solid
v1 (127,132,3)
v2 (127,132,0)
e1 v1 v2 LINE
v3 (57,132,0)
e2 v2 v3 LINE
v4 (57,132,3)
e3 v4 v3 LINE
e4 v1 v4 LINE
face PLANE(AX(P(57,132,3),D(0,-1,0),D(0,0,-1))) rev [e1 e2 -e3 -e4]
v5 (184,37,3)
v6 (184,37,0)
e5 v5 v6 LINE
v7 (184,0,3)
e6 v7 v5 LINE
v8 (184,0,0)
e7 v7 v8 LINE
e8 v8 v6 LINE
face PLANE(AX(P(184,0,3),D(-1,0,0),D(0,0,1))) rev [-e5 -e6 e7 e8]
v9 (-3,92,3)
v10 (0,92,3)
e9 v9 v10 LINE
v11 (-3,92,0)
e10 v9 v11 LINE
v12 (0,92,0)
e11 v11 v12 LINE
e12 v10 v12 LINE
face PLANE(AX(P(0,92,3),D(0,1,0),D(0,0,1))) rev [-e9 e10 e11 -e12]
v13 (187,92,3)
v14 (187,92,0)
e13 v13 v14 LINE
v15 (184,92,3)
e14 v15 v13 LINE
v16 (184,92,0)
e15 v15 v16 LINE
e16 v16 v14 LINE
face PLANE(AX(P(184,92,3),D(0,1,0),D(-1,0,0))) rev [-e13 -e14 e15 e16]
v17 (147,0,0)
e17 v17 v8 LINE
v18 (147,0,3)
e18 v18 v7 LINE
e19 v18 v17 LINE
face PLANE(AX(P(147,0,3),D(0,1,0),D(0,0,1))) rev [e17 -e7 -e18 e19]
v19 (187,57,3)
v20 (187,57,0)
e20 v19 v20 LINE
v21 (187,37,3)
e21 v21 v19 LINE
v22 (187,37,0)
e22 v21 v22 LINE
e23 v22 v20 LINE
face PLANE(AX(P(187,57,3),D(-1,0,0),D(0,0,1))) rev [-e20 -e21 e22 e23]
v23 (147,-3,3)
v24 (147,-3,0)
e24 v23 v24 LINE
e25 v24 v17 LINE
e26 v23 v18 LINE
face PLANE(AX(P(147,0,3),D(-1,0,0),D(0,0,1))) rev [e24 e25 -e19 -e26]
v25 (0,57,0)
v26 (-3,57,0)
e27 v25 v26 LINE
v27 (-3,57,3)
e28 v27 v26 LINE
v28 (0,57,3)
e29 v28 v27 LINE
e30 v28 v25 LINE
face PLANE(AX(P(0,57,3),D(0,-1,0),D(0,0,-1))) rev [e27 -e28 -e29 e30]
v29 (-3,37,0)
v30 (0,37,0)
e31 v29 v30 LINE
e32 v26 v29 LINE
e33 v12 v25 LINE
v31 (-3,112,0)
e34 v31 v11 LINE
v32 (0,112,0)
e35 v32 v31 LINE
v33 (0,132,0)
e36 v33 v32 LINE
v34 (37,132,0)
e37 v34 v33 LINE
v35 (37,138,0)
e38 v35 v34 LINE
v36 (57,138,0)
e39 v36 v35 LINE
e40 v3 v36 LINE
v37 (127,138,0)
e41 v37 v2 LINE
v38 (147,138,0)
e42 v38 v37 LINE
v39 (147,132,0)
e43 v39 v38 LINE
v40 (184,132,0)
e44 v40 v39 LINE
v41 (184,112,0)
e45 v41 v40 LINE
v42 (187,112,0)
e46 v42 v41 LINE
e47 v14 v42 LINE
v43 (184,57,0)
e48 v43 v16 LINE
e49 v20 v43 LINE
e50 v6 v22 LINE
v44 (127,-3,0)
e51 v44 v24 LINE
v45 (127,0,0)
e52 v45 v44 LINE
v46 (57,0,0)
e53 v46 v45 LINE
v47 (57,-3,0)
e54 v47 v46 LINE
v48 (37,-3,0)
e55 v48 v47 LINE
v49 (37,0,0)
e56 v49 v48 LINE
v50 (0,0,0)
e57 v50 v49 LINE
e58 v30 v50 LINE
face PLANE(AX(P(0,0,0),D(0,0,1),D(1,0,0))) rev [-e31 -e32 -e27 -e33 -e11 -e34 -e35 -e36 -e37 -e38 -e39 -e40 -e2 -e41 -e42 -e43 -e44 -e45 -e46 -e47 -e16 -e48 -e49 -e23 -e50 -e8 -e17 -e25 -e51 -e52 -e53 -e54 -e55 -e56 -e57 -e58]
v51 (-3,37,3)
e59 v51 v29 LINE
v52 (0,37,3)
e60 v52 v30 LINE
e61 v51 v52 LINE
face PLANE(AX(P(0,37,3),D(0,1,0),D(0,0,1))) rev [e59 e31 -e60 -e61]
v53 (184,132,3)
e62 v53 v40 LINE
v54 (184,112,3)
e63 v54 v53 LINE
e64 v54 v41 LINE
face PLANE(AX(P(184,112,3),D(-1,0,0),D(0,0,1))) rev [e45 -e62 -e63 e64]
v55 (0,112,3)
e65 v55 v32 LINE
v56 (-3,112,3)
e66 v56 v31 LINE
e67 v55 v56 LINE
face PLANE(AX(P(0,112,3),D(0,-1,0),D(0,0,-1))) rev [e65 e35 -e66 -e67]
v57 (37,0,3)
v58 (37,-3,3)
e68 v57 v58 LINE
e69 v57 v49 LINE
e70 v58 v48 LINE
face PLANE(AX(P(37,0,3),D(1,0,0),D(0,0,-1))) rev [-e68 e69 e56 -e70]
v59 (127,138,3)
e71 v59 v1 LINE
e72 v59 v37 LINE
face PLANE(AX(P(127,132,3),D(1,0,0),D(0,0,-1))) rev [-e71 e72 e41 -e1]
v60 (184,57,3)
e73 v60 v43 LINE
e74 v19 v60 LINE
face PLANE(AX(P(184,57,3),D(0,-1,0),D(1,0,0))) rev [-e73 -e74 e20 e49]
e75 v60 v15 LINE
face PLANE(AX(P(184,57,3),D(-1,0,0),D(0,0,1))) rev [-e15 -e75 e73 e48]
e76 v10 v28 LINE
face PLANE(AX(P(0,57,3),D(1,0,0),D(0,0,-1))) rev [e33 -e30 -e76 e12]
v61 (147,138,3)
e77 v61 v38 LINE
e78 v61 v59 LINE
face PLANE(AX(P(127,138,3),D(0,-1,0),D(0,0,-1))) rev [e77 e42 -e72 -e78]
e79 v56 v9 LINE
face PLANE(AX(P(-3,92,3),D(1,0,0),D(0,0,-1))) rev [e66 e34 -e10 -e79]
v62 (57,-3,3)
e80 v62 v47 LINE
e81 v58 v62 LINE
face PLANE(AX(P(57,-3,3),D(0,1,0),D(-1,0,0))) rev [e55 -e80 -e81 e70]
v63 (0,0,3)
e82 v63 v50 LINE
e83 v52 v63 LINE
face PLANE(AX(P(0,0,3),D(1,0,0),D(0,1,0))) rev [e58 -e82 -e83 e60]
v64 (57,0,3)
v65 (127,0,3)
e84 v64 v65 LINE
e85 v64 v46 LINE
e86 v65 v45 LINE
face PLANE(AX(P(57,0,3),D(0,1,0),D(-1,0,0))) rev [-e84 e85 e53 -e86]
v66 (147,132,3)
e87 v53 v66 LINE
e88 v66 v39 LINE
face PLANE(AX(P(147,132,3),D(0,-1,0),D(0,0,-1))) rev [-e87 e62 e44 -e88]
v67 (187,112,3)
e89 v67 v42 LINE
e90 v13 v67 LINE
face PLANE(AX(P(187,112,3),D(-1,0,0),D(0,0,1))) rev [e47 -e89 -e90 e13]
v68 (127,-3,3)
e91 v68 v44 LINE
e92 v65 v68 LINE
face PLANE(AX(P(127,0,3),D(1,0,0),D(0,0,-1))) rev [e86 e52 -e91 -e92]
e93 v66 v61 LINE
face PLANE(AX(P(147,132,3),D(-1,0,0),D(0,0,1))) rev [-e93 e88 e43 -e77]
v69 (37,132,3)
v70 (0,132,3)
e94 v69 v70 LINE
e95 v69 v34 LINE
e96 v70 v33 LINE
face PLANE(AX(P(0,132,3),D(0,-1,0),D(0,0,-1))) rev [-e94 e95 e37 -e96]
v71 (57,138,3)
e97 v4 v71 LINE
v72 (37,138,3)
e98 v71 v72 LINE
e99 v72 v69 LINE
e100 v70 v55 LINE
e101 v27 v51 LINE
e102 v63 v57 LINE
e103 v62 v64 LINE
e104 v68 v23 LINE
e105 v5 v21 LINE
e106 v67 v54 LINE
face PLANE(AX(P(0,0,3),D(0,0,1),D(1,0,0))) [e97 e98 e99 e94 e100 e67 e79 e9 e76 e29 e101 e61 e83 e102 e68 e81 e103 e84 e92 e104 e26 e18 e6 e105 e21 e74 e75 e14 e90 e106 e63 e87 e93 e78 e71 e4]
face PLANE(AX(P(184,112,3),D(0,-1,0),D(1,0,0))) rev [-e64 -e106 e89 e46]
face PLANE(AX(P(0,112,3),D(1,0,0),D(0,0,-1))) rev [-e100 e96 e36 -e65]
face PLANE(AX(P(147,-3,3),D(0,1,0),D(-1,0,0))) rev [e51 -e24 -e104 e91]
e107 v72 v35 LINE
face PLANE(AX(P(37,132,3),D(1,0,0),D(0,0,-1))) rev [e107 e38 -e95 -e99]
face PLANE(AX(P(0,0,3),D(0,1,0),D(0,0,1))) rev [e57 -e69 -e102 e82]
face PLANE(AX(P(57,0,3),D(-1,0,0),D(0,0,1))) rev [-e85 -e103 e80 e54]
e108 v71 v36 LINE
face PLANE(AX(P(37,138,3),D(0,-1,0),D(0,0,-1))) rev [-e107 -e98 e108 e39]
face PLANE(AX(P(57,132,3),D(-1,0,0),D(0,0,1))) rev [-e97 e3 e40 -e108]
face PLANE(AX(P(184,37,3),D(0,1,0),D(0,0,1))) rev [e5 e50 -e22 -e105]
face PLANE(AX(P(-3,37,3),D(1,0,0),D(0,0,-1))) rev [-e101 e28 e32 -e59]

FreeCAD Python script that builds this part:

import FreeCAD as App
import Part
import Sketcher
from FreeCAD import Vector

doc = App.newDocument("Part")
params = doc.addObject("Spreadsheet::Sheet", "Params")
for row, (alias, value) in enumerate([
    ("sketch1_width", "3 mm"),
    ("sketch1_width2", "37 mm"),
    ("sketch1_width3", "20 mm"),
    ("sketch1_width4", "70 mm"),
    ("sketch1_height", "35 mm"),
    ("pad1_length", "3 mm"),
], start=1):
    params.set(f"A{row}", alias)
    params.set(f"B{row}", "=" + value)
    params.setAlias(f"B{row}", alias)

body = doc.addObject("PartDesign::Body", "Body")

# Sketch on XY plane
sketch1 = body.newObject("Sketcher::SketchObject", "Sketch")
sketch1.AttachmentSupport = (doc.getObject("XY_Plane"), [""])
sketch1.MapMode = "FlatFace"
sketch1.addGeometry([
    Part.LineSegment(Vector(0, 132, 0), Vector(0, 112, 0)),  # 0
    Part.LineSegment(Vector(0, 112, 0), Vector(-3, 112, 0)),  # 1
    Part.LineSegment(Vector(-3, 112, 0), Vector(-3, 92, 0)),  # 2
    Part.LineSegment(Vector(-3, 92, 0), Vector(0, 92, 0)),  # 3
    Part.LineSegment(Vector(0, 92, 0), Vector(0, 57, 0)),  # 4
    Part.LineSegment(Vector(0, 57, 0), Vector(-3, 57, 0)),  # 5
    Part.LineSegment(Vector(-3, 57, 0), Vector(-3, 37, 0)),  # 6
    Part.LineSegment(Vector(-3, 37, 0), Vector(0, 37, 0)),  # 7
    Part.LineSegment(Vector(0, 37, 0), Vector(0, 0, 0)),  # 8
    Part.LineSegment(Vector(0, 0, 0), Vector(37, 0, 0)),  # 9
    Part.LineSegment(Vector(37, 0, 0), Vector(37, -3, 0)),  # 10
    Part.LineSegment(Vector(37, -3, 0), Vector(57, -3, 0)),  # 11
    Part.LineSegment(Vector(57, -3, 0), Vector(57, 0, 0)),  # 12
    Part.LineSegment(Vector(57, 0, 0), Vector(127, 0, 0)),  # 13
    Part.LineSegment(Vector(127, 0, 0), Vector(127, -3, 0)),  # 14
    Part.LineSegment(Vector(127, -3, 0), Vector(147, -3, 0)),  # 15
    Part.LineSegment(Vector(147, -3, 0), Vector(147, 0, 0)),  # 16
    Part.LineSegment(Vector(147, 0, 0), Vector(184, 0, 0)),  # 17
    Part.LineSegment(Vector(184, 0, 0), Vector(184, 37, 0)),  # 18
    Part.LineSegment(Vector(184, 37, 0), Vector(187, 37, 0)),  # 19
    Part.LineSegment(Vector(187, 37, 0), Vector(187, 57, 0)),  # 20
    Part.LineSegment(Vector(187, 57, 0), Vector(184, 57, 0)),  # 21
    Part.LineSegment(Vector(184, 57, 0), Vector(184, 92, 0)),  # 22
    Part.LineSegment(Vector(184, 92, 0), Vector(187, 92, 0)),  # 23
    Part.LineSegment(Vector(187, 92, 0), Vector(187, 112, 0)),  # 24
    Part.LineSegment(Vector(187, 112, 0), Vector(184, 112, 0)),  # 25
    Part.LineSegment(Vector(184, 112, 0), Vector(184, 132, 0)),  # 26
    Part.LineSegment(Vector(184, 132, 0), Vector(147, 132, 0)),  # 27
    Part.LineSegment(Vector(147, 132, 0), Vector(147, 138, 0)),  # 28
    Part.LineSegment(Vector(147, 138, 0), Vector(127, 138, 0)),  # 29
    Part.LineSegment(Vector(127, 138, 0), Vector(127, 132, 0)),  # 30
    Part.LineSegment(Vector(127, 132, 0), Vector(57, 132, 0)),  # 31
    Part.LineSegment(Vector(57, 132, 0), Vector(57, 138, 0)),  # 32
    Part.LineSegment(Vector(57, 138, 0), Vector(37, 138, 0)),  # 33
    Part.LineSegment(Vector(37, 138, 0), Vector(37, 132, 0)),  # 34
    Part.LineSegment(Vector(37, 132, 0), Vector(0, 132, 0)),  # 35
], False)
sketch1.addConstraint([
    Sketcher.Constraint("Coincident", 0, 2, 1, 1),
    Sketcher.Constraint("Coincident", 1, 2, 2, 1),
    Sketcher.Constraint("Coincident", 2, 2, 3, 1),
    Sketcher.Constraint("Coincident", 3, 2, 4, 1),
    Sketcher.Constraint("Coincident", 4, 2, 5, 1),
    Sketcher.Constraint("Coincident", 5, 2, 6, 1),
    Sketcher.Constraint("Coincident", 6, 2, 7, 1),
    Sketcher.Constraint("Coincident", 7, 2, 8, 1),
    Sketcher.Constraint("Coincident", 8, 2, 9, 1),
    Sketcher.Constraint("Coincident", 9, 2, 10, 1),
    Sketcher.Constraint("Coincident", 10, 2, 11, 1),
    Sketcher.Constraint("Coincident", 11, 2, 12, 1),
    Sketcher.Constraint("Coincident", 12, 2, 13, 1),
    Sketcher.Constraint("Coincident", 13, 2, 14, 1),
    Sketcher.Constraint("Coincident", 14, 2, 15, 1),
    Sketcher.Constraint("Coincident", 15, 2, 16, 1),
    Sketcher.Constraint("Coincident", 16, 2, 17, 1),
    Sketcher.Constraint("Coincident", 17, 2, 18, 1),
    Sketcher.Constraint("Coincident", 18, 2, 19, 1),
    Sketcher.Constraint("Coincident", 19, 2, 20, 1),
    Sketcher.Constraint("Coincident", 20, 2, 21, 1),
    Sketcher.Constraint("Coincident", 21, 2, 22, 1),
    Sketcher.Constraint("Coincident", 22, 2, 23, 1),
    Sketcher.Constraint("Coincident", 23, 2, 24, 1),
    Sketcher.Constraint("Coincident", 24, 2, 25, 1),
    Sketcher.Constraint("Coincident", 25, 2, 26, 1),
    Sketcher.Constraint("Coincident", 26, 2, 27, 1),
    Sketcher.Constraint("Coincident", 27, 2, 28, 1),
    Sketcher.Constraint("Coincident", 28, 2, 29, 1),
    Sketcher.Constraint("Coincident", 29, 2, 30, 1),
    Sketcher.Constraint("Coincident", 30, 2, 31, 1),
    Sketcher.Constraint("Coincident", 31, 2, 32, 1),
    Sketcher.Constraint("Coincident", 32, 2, 33, 1),
    Sketcher.Constraint("Coincident", 33, 2, 34, 1),
    Sketcher.Constraint("Coincident", 34, 2, 35, 1),
    Sketcher.Constraint("Coincident", 35, 2, 0, 1),
    Sketcher.Constraint("Vertical", 0),
    Sketcher.Constraint("Horizontal", 1),
    Sketcher.Constraint("Vertical", 2),
    Sketcher.Constraint("Horizontal", 3),
    Sketcher.Constraint("Vertical", 4),
    Sketcher.Constraint("Horizontal", 5),
    Sketcher.Constraint("Vertical", 6),
    Sketcher.Constraint("Horizontal", 7),
    Sketcher.Constraint("Vertical", 8),
    Sketcher.Constraint("Horizontal", 9),
    Sketcher.Constraint("Vertical", 10),
    Sketcher.Constraint("Horizontal", 11),
    Sketcher.Constraint("Vertical", 12),
    Sketcher.Constraint("Horizontal", 13),
    Sketcher.Constraint("Vertical", 14),
    Sketcher.Constraint("Horizontal", 15),
    Sketcher.Constraint("Vertical", 16),
    Sketcher.Constraint("Horizontal", 17),
    Sketcher.Constraint("Vertical", 18),
    Sketcher.Constraint("Horizontal", 19),
    Sketcher.Constraint("Vertical", 20),
    Sketcher.Constraint("Horizontal", 21),
    Sketcher.Constraint("Vertical", 22),
    Sketcher.Constraint("Horizontal", 23),
    Sketcher.Constraint("Vertical", 24),
    Sketcher.Constraint("Horizontal", 25),
    Sketcher.Constraint("Vertical", 26),
    Sketcher.Constraint("Horizontal", 27),
    Sketcher.Constraint("Vertical", 28),
    Sketcher.Constraint("Horizontal", 29),
    Sketcher.Constraint("Vertical", 30),
    Sketcher.Constraint("Horizontal", 31),
    Sketcher.Constraint("Vertical", 32),
    Sketcher.Constraint("Horizontal", 33),
    Sketcher.Constraint("Vertical", 34),
    Sketcher.Constraint("Horizontal", 35),
    Sketcher.Constraint("Coincident", 8, 2, -1, 1),
    Sketcher.Constraint("PointOnObject", 0, 2, -2),
    Sketcher.Constraint("PointOnObject", 3, 2, -2),
    Sketcher.Constraint("PointOnObject", 12, 2, -1),
    Sketcher.Constraint("PointOnObject", 16, 2, -1),
    Sketcher.Constraint("Horizontal", 11, 2, 14, 2),
    Sketcher.Constraint("Horizontal", 7, 2, 18, 2),
    Sketcher.Constraint("Horizontal", 5, 2, 20, 2),
    Sketcher.Constraint("Horizontal", 3, 2, 22, 2),
    Sketcher.Constraint("Horizontal", 1, 2, 24, 2),
    Sketcher.Constraint("Horizontal", 27, 2, 30, 2),
    Sketcher.Constraint("Horizontal", 29, 2, 32, 2),
    Sketcher.Constraint("Horizontal", 31, 2, 34, 2),
    Sketcher.Constraint("Vertical", 2, 2, 5, 2),
    Sketcher.Constraint("Vertical", 18, 2, 21, 2),
    Sketcher.Constraint("Vertical", 20, 2, 23, 2),
    Sketcher.Constraint("Vertical", 22, 2, 25, 2),
    Sketcher.Constraint("Vertical", 16, 2, 27, 2),
    Sketcher.Constraint("Vertical", 14, 2, 29, 2),
    Sketcher.Constraint("Vertical", 12, 2, 31, 2),
    Sketcher.Constraint("Vertical", 10, 2, 33, 2),
    Sketcher.Constraint("Equal", 11, 15),
    Sketcher.Constraint("Equal", 9, 17),
    Sketcher.Constraint("Equal", 7, 19),
    Sketcher.Constraint("Equal", 33, 0),
    Sketcher.Constraint("Equal", 0, 2),
    Sketcher.Constraint("Equal", 2, 6),
    Sketcher.Constraint("Equal", 35, 8),
    Sketcher.Constraint("Equal", 25, 10),
    Sketcher.Constraint("DistanceX", 1, 2, 1, 1, 3.0),
    Sketcher.Constraint("DistanceX", 9, 1, 9, 2, 37.0),
    Sketcher.Constraint("DistanceX", 11, 1, 11, 2, 20.0),
    Sketcher.Constraint("DistanceX", 13, 1, 13, 2, 70.0),
    Sketcher.Constraint("DistanceY", 4, 2, 4, 1, 35.0),
    Sketcher.Constraint("DistanceY", 28, 1, 28, 2, 6.0),
])
sketch1.setExpression("Constraints[101]", "Params.sketch1_width")
sketch1.setExpression("Constraints[102]", "Params.sketch1_width2")
sketch1.setExpression("Constraints[103]", "Params.sketch1_width3")
sketch1.setExpression("Constraints[104]", "Params.sketch1_width4")
sketch1.setExpression("Constraints[105]", "Params.sketch1_height")
pad1 = body.newObject("PartDesign::Pad", "Pad")
pad1.Profile = sketch1
pad1.setExpression("Length", "Params.pad1_length")

doc.recompute()
